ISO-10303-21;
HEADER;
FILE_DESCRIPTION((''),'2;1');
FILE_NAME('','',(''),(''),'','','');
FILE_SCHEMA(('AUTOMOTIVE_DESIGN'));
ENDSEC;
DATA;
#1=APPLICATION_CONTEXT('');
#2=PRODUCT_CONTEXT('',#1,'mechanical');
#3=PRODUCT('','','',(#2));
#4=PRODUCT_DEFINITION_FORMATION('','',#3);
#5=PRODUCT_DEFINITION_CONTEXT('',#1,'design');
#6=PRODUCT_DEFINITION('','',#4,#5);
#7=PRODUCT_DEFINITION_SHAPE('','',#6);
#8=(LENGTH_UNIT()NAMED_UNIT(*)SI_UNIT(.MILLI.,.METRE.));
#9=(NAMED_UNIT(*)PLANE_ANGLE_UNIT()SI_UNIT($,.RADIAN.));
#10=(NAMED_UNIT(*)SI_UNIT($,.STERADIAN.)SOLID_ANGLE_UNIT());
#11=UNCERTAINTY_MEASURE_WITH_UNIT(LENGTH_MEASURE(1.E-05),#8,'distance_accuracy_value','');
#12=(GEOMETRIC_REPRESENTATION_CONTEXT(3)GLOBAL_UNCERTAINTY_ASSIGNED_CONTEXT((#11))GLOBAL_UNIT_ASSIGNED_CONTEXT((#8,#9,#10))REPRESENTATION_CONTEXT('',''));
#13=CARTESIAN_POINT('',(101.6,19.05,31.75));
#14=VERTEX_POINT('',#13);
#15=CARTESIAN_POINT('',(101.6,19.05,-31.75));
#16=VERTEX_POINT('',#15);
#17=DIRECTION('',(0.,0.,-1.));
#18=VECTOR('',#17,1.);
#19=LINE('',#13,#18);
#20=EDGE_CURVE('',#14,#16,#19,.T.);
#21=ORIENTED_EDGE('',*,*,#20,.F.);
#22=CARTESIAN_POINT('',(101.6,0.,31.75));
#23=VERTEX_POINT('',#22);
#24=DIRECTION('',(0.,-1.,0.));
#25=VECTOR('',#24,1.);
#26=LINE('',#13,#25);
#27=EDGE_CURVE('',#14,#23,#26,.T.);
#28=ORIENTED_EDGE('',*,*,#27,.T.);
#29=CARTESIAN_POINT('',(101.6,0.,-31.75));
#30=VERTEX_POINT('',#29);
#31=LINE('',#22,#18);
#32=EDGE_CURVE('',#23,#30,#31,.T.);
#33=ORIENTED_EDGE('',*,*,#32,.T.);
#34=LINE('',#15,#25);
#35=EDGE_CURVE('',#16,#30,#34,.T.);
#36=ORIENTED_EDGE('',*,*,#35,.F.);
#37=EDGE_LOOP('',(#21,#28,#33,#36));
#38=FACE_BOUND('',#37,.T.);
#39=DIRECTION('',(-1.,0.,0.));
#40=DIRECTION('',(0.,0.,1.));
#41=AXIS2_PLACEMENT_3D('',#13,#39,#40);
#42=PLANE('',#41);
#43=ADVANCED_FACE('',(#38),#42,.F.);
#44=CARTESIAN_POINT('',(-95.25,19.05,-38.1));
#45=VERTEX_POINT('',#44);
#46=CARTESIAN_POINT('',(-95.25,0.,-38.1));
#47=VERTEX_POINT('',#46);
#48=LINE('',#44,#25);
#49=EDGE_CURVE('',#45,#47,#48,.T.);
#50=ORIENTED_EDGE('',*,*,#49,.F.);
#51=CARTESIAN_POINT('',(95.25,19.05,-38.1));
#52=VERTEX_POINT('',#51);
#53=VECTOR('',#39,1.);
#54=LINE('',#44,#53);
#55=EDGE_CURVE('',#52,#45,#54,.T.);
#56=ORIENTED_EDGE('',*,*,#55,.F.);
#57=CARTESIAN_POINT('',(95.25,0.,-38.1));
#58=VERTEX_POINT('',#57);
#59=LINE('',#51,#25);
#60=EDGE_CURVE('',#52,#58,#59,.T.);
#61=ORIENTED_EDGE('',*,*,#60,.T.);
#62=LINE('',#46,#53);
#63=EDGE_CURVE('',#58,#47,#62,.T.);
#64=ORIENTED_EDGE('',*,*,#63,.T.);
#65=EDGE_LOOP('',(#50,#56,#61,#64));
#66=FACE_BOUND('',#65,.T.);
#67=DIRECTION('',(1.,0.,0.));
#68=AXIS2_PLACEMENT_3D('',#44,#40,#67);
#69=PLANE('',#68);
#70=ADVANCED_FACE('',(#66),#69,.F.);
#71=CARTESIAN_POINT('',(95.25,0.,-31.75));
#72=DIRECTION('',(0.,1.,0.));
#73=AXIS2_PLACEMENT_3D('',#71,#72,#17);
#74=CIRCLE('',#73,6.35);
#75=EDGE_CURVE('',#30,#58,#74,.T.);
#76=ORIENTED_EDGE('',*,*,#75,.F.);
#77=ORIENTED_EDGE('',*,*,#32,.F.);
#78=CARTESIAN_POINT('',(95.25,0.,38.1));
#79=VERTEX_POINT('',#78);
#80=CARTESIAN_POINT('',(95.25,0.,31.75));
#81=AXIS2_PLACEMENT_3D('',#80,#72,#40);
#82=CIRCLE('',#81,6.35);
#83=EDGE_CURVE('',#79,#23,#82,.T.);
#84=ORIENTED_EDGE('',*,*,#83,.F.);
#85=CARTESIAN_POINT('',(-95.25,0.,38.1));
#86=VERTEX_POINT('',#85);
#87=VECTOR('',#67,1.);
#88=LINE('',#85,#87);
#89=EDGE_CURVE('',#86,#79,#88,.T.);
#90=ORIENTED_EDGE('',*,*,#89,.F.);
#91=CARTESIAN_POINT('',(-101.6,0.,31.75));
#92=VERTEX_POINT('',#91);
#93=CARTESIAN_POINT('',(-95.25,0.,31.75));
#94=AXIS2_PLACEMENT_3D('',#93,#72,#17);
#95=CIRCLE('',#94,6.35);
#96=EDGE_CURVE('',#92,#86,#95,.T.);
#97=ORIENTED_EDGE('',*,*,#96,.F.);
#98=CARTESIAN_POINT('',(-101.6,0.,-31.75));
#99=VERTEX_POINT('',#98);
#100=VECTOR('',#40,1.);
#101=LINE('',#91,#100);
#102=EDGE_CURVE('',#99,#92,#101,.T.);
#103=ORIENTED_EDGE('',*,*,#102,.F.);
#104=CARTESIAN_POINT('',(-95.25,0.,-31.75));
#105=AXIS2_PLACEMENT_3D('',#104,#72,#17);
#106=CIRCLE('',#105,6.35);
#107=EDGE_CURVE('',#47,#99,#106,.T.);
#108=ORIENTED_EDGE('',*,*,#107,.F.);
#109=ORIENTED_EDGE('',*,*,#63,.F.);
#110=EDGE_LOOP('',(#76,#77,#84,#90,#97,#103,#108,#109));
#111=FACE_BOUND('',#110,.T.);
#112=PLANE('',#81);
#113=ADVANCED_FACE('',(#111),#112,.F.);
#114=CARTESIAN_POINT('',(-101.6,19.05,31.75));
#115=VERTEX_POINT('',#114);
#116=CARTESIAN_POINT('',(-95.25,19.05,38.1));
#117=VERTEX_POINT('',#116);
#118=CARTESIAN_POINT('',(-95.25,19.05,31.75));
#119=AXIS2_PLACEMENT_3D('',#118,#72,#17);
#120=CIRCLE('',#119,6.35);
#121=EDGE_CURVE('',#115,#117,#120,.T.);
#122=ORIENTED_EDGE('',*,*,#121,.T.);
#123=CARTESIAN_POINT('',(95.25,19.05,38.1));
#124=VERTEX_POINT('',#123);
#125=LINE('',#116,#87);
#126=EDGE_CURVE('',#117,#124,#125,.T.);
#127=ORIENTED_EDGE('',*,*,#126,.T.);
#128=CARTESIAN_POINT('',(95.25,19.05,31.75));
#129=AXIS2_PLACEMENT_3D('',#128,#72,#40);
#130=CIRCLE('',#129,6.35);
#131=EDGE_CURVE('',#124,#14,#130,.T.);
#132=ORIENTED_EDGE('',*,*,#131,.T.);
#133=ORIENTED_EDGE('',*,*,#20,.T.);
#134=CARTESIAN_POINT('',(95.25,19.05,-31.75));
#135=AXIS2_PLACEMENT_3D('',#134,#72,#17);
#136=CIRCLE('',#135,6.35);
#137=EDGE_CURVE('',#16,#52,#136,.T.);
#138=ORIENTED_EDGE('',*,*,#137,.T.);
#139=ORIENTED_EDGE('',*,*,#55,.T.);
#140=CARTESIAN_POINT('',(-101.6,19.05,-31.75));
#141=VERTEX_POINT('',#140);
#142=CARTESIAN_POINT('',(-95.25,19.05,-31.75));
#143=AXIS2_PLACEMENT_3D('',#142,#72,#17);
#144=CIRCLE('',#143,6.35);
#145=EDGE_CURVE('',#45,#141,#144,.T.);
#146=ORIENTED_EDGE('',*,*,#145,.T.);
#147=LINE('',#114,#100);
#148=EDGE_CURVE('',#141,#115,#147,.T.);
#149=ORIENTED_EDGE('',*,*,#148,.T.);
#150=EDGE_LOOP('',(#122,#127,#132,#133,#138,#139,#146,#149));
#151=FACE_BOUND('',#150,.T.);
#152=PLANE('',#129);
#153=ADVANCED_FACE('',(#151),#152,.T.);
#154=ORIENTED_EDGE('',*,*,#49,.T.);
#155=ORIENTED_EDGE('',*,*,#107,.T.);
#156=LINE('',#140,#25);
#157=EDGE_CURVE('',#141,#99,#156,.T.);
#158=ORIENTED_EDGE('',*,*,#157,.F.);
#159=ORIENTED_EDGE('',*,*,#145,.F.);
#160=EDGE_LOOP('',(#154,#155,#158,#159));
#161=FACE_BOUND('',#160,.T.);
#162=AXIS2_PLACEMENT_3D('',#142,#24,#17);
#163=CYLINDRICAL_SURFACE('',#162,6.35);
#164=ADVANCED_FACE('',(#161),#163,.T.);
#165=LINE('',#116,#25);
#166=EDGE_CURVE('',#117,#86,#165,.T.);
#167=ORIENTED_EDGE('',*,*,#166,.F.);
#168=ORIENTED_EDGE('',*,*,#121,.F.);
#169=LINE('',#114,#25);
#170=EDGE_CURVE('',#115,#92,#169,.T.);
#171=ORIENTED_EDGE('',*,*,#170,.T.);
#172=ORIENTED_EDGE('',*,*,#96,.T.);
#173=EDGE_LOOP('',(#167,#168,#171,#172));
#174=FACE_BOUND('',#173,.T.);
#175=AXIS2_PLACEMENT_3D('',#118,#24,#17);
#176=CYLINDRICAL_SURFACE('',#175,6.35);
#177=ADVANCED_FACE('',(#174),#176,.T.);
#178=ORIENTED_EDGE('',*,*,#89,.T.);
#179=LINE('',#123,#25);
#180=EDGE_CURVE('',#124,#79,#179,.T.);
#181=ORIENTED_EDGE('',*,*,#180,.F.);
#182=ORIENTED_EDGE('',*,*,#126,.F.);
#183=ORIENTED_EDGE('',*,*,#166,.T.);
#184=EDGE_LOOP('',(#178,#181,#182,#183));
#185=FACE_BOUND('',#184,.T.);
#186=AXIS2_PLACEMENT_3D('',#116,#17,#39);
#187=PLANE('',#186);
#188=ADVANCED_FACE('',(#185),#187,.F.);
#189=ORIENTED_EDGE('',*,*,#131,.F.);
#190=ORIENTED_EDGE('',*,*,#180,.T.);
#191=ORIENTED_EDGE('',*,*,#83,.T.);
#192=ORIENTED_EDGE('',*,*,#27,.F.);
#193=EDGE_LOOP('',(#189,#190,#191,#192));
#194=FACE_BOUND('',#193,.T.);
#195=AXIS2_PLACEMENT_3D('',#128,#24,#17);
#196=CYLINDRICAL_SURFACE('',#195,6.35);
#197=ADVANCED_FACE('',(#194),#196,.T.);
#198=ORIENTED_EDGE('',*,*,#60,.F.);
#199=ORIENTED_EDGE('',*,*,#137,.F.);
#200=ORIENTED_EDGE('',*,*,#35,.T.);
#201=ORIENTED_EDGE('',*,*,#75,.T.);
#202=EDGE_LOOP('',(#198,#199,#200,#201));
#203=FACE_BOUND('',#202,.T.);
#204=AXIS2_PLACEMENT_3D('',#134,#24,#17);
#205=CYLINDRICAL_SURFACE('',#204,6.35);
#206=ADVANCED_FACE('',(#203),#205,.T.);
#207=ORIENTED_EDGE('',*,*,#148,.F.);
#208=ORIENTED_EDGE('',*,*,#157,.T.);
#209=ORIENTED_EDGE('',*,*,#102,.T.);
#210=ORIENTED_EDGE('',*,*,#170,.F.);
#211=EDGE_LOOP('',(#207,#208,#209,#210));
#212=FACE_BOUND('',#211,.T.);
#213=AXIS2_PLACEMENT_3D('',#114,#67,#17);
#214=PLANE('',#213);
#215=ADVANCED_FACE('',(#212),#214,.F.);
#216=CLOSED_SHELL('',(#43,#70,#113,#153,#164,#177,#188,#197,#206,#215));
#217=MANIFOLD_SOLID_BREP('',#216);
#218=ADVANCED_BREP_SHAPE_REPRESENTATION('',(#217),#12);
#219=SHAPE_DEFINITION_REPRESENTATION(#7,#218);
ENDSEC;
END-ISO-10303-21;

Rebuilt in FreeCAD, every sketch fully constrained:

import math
import FreeCAD as App
import Part
import Sketcher
from FreeCAD import Vector
Q = App.Units.Quantity

doc = App.newDocument("Part")
body = doc.addObject("PartDesign::Body", "Body")

# Sketch on XZ plane
sketch1 = doc.addObject("Sketcher::SketchObject", "Sketch")
body.addObject(sketch1)
sketch1.AttachmentSupport = (doc.XZ_Plane, [""])
sketch1.MapMode = "FlatFace"
sketch1.addGeometry([
    Part.LineSegment(Vector(-95, 38, 0), Vector(95, 38, 0)),  # 0
    Part.ArcOfCircle(Part.Circle(Vector(95, 32, 0), Vector(0, 0, 1), 6), math.radians(0), math.radians(90)),  # 1
    Part.LineSegment(Vector(102, 32, 0), Vector(102, -32, 0)),  # 2
    Part.ArcOfCircle(Part.Circle(Vector(95, -32, 0), Vector(0, 0, 1), 6), math.radians(-90), math.radians(0)),  # 3
    Part.LineSegment(Vector(95, -38, 0), Vector(-95, -38, 0)),  # 4
    Part.ArcOfCircle(Part.Circle(Vector(-95, -32, 0), Vector(0, 0, 1), 6), math.radians(180), math.radians(270)),  # 5
    Part.LineSegment(Vector(-102, -32, 0), Vector(-102, 32, 0)),  # 6
    Part.ArcOfCircle(Part.Circle(Vector(-95, 32, 0), Vector(0, 0, 1), 6), math.radians(90), math.radians(180)),  # 7
], False)
sketch1.addConstraint([
    Sketcher.Constraint("Tangent", 0, 2, 1, 2),
    Sketcher.Constraint("Tangent", 1, 1, 2, 1),
    Sketcher.Constraint("Tangent", 2, 2, 3, 2),
    Sketcher.Constraint("Tangent", 3, 1, 4, 1),
    Sketcher.Constraint("Tangent", 4, 2, 5, 2),
    Sketcher.Constraint("Tangent", 5, 1, 6, 1),
    Sketcher.Constraint("Tangent", 6, 2, 7, 2),
    Sketcher.Constraint("Tangent", 7, 1, 0, 1),
    Sketcher.Constraint("Horizontal", 0),
    Sketcher.Constraint("Vertical", 2),
    Sketcher.Constraint("Horizontal", 4),
    Sketcher.Constraint("Vertical", 6),
    Sketcher.Constraint("Equal", 1, 3),
    Sketcher.Constraint("Equal", 3, 5),
    Sketcher.Constraint("Equal", 5, 7),
    Sketcher.Constraint("Symmetric", 1, 3, 5, 3, -1, 1),
    Sketcher.Constraint("Radius", 1, Q("0.25 in")),
    Sketcher.Constraint("DistanceX", 0, 1, 0, 2, Q("7.5 in")),
    Sketcher.Constraint("DistanceY", 2, 2, 2, 1, Q("2.5 in")),
])
pad1 = doc.addObject("PartDesign::Pad", "Pad")
body.addObject(pad1)
pad1.Profile = sketch1
pad1.Length = Q("0.75 in")
pad1.Reversed = True

doc.recompute()
